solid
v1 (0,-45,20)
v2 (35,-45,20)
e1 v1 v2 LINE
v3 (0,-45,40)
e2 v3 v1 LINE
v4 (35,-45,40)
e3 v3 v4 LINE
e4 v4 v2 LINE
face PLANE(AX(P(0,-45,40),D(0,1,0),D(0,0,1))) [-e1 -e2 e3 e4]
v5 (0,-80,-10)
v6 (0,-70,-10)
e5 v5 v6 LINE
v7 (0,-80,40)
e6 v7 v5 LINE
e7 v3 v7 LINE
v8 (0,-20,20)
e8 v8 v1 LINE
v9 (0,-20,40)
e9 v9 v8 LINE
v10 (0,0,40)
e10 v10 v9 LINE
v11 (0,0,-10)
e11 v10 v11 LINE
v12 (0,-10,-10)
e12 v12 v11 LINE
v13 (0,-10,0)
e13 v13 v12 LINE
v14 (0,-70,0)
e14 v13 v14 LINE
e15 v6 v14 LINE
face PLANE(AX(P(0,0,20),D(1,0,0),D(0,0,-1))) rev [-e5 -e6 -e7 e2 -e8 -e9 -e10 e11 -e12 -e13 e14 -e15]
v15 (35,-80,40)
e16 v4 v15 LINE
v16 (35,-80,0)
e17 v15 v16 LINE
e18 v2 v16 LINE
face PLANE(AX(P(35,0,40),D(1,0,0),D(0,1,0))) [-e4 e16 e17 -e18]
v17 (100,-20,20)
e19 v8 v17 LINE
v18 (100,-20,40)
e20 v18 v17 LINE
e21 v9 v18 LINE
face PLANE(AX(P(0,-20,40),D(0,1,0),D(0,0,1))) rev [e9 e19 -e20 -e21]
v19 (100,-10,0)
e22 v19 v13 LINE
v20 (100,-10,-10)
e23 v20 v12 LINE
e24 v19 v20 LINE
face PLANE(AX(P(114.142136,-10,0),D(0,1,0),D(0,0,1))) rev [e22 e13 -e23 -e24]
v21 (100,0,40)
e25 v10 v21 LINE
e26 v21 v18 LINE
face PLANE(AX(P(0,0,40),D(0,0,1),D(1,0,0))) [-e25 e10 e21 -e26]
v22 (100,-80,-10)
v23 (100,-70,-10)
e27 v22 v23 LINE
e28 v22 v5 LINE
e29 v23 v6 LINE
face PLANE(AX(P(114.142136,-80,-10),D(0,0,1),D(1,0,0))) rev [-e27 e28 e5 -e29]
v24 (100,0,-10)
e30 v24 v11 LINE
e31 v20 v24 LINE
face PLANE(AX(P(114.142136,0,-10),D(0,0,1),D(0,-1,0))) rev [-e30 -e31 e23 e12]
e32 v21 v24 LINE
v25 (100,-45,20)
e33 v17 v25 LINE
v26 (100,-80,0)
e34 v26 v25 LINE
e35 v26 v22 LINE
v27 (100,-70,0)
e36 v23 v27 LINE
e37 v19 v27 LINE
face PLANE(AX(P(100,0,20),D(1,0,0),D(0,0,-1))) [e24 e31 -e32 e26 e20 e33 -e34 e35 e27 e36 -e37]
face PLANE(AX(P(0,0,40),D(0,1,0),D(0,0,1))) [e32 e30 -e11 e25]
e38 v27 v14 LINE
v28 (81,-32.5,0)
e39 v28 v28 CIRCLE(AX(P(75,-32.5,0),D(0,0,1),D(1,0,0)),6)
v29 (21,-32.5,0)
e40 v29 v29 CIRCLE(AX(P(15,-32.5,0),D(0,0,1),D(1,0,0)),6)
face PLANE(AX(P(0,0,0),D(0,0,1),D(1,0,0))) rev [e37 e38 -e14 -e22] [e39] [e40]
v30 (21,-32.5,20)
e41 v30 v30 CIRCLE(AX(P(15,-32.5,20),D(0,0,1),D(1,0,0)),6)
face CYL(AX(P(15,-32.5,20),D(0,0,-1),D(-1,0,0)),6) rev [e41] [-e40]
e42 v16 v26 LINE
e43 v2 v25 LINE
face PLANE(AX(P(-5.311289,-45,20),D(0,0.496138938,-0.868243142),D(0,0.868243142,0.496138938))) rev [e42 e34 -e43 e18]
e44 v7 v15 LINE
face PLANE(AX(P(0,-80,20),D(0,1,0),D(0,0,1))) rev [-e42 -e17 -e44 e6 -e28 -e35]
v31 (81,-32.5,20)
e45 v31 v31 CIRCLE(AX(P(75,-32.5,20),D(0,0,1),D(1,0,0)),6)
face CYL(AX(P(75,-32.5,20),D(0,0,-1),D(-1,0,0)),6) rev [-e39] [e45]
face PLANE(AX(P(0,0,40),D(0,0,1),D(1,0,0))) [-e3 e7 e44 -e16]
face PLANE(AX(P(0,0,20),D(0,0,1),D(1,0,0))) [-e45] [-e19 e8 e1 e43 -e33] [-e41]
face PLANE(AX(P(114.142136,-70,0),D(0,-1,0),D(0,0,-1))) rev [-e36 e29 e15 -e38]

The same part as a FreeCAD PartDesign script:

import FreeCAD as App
import Part
import Sketcher

V = App.Vector
Q = App.Units.Quantity

doc = App.newDocument("Part")
body = doc.addObject("PartDesign::Body", "Body")

# Sketch on XY plane
sketch1 = body.newObject("Sketcher::SketchObject", "Sketch")
sketch1.AttachmentSupport = (doc.getObject("XY_Plane"), [""])
sketch1.MapMode = "FlatFace"
sketch1.addGeometry([
    Part.LineSegment(V(100, -20, 0), V(0, -20, 0)),  # 0
    Part.LineSegment(V(0, -20, 0), V(0, -45, 0)),  # 1
    Part.LineSegment(V(0, -45, 0), V(35, -45, 0)),  # 2
    Part.LineSegment(V(35, -45, 0), V(35, -80, 0)),  # 3
    Part.LineSegment(V(35, -80, 0), V(100, -80, 0)),  # 4
    Part.LineSegment(V(100, -80, 0), V(100, -20, 0)),  # 5
    Part.Circle(V(15, -32, 0), V(0, 0, 1), 6),  # 6
    Part.Circle(V(75, -32, 0), V(0, 0, 1), 6),  # 7
], False)
sketch1.addConstraint([
    Sketcher.Constraint("Coincident", 0, 2, 1, 1),
    Sketcher.Constraint("Coincident", 1, 2, 2, 1),
    Sketcher.Constraint("Coincident", 2, 2, 3, 1),
    Sketcher.Constraint("Coincident", 3, 2, 4, 1),
    Sketcher.Constraint("Coincident", 4, 2, 5, 1),
    Sketcher.Constraint("Coincident", 5, 2, 0, 1),
    Sketcher.Constraint("Horizontal", 0),
    Sketcher.Constraint("Vertical", 1),
    Sketcher.Constraint("Horizontal", 2),
    Sketcher.Constraint("Vertical", 3),
    Sketcher.Constraint("Horizontal", 4),
    Sketcher.Constraint("Vertical", 5),
    Sketcher.Constraint("Equal", 6, 7),
    Sketcher.Constraint("PointOnObject", 0, 2, -2),
    Sketcher.Constraint("Horizontal", 6, 3, 7, 3),
    Sketcher.Constraint("Equal", 2, 3),
    Sketcher.Constraint("Diameter", 6, Q("12 mm")),
    Sketcher.Constraint("DistanceX", 0, 2, 0, 1, Q("100 mm")),
    Sketcher.Constraint("DistanceX", 2, 1, 2, 2, Q("35 mm")),
    Sketcher.Constraint("DistanceY", 1, 2, 1, 1, Q("25 mm")),
    Sketcher.Constraint("DistanceX", -1, 1, 6, 3, Q("15 mm")),
    Sketcher.Constraint("DistanceX", -1, 1, 7, 3, Q("75 mm")),
    Sketcher.Constraint("DistanceY", 0, 2, -1, 1, Q("20 mm")),
    Sketcher.Constraint("DistanceY", 6, 3, -1, 1, Q("32.5 mm")),
])
pad1 = body.newObject("PartDesign::Pad", "Pad")
pad1.Profile = sketch1
pad1.Length = 20

# Sketch on XY plane
sketch2 = body.newObject("Sketcher::SketchObject", "Sketch001")
sketch2.AttachmentSupport = (doc.getObject("XY_Plane"), [""])
sketch2.MapMode = "FlatFace"
sketch2.addGeometry([
    Part.LineSegment(V(0, -45, 0), V(0, -80, 0)),  # 0
    Part.LineSegment(V(0, -80, 0), V(35, -80, 0)),  # 1
    Part.LineSegment(V(35, -80, 0), V(35, -45, 0)),  # 2
    Part.LineSegment(V(35, -45, 0), V(0, -45, 0)),  # 3
    Part.LineSegment(V(0, 0, 0), V(0, -20, 0)),  # 4
    Part.LineSegment(V(0, -20, 0), V(100, -20, 0)),  # 5
    Part.LineSegment(V(100, -20, 0), V(100, 0, 0)),  # 6
    Part.LineSegment(V(100, 0, 0), V(0, 0, 0)),  # 7
], False)
sketch2.addConstraint([
    Sketcher.Constraint("Coincident", 0, 2, 1, 1),
    Sketcher.Constraint("Coincident", 1, 2, 2, 1),
    Sketcher.Constraint("Coincident", 2, 2, 3, 1),
    Sketcher.Constraint("Coincident", 3, 2, 0, 1),
    Sketcher.Constraint("Coincident", 4, 2, 5, 1),
    Sketcher.Constraint("Coincident", 5, 2, 6, 1),
    Sketcher.Constraint("Coincident", 6, 2, 7, 1),
    Sketcher.Constraint("Coincident", 7, 2, 4, 1),
    Sketcher.Constraint("Vertical", 0),
    Sketcher.Constraint("Horizontal", 1),
    Sketcher.Constraint("Vertical", 2),
    Sketcher.Constraint("Horizontal", 3),
    Sketcher.Constraint("Vertical", 4),
    Sketcher.Constraint("Horizontal", 5),
    Sketcher.Constraint("Vertical", 6),
    Sketcher.Constraint("Horizontal", 7),
    Sketcher.Constraint("Coincident", 7, 2, -1, 1),
    Sketcher.Constraint("PointOnObject", 0, 2, -2),
    Sketcher.Constraint("Equal", 3, 0),
    Sketcher.Constraint("DistanceX", 1, 1, 1, 2, Q("35 mm")),
    Sketcher.Constraint("DistanceX", 5, 1, 5, 2, Q("100 mm")),
    Sketcher.Constraint("DistanceY", 4, 2, 4, 1, Q("20 mm")),
    Sketcher.Constraint("DistanceY", 0, 2, -1, 1, Q("80 mm")),
])
pad2 = body.newObject("PartDesign::Pad", "Pad001")
pad2.Profile = sketch2
pad2.Length = 40

# Sketch on YZ plane
sketch3 = body.newObject("Sketcher::SketchObject", "Sketch002")
sketch3.AttachmentSupport = (doc.getObject("YZ_Plane"), [""])
sketch3.MapMode = "FlatFace"
sketch3.addGeometry([
    Part.LineSegment(V(-70, 0, 0), V(-80, 0, 0)),  # 0
    Part.LineSegment(V(-80, 0, 0), V(-80, -10, 0)),  # 1
    Part.LineSegment(V(-80, -10, 0), V(-70, -10, 0)),  # 2
    Part.LineSegment(V(-70, -10, 0), V(-70, 0, 0)),  # 3
    Part.LineSegment(V(0, 0, 0), V(-10, 0, 0)),  # 4
    Part.LineSegment(V(-10, 0, 0), V(-10, -10, 0)),  # 5
    Part.LineSegment(V(-10, -10, 0), V(0, -10, 0)),  # 6
    Part.LineSegment(V(0, -10, 0), V(0, 0, 0)),  # 7
], False)
sketch3.addConstraint([
    Sketcher.Constraint("Coincident", 0, 2, 1, 1),
    Sketcher.Constraint("Coincident", 1, 2, 2, 1),
    Sketcher.Constraint("Coincident", 2, 2, 3, 1),
    Sketcher.Constraint("Coincident", 3, 2, 0, 1),
    Sketcher.Constraint("Coincident", 4, 2, 5, 1),
    Sketcher.Constraint("Coincident", 5, 2, 6, 1),
    Sketcher.Constraint("Coincident", 6, 2, 7, 1),
    Sketcher.Constraint("Coincident", 7, 2, 4, 1),
    Sketcher.Constraint("Horizontal", 0),
    Sketcher.Constraint("Vertical", 1),
    Sketcher.Constraint("Horizontal", 2),
    Sketcher.Constraint("Vertical", 3),
    Sketcher.Constraint("Horizontal", 4),
    Sketcher.Constraint("Vertical", 5),
    Sketcher.Constraint("Horizontal", 6),
    Sketcher.Constraint("Vertical", 7),
    Sketcher.Constraint("Coincident", 7, 2, -1, 1),
    Sketcher.Constraint("PointOnObject", 0, 2, -1),
    Sketcher.Constraint("Horizontal", 2, 2, 5, 2),
    Sketcher.Constraint("Equal", 2, 4),
    Sketcher.Constraint("Equal", 6, 1),
    Sketcher.Constraint("DistanceX", 0, 2, 0, 1, Q("10 mm")),
    Sketcher.Constraint("DistanceX", 0, 2, -1, 1, Q("80 mm")),
])
pad3 = body.newObject("PartDesign::Pad", "Pad002")
pad3.Profile = sketch3
pad3.Length = 100

# Sketch on YZ plane
sketch4 = body.newObject("Sketcher::SketchObject", "Sketch003")
sketch4.AttachmentSupport = (doc.getObject("YZ_Plane"), [""])
sketch4.MapMode = "FlatFace"
sketch4.AttachmentOffset = App.Placement(V(0, 0, 100), App.Rotation())
sketch4.addGeometry([
    Part.LineSegment(V(-80, 0, 0), V(-45, 20, 0)),
    Part.LineSegment(V(-45, 20, 0), V(-80, 20, 0)),
    Part.LineSegment(V(-80, 20, 0), V(-80, 0, 0)),
], False)
sketch4.addConstraint([
    Sketcher.Constraint("Coincident", 0, 2, 1, 1),
    Sketcher.Constraint("Coincident", 1, 2, 2, 1),
    Sketcher.Constraint("Coincident", 2, 2, 0, 1),
    Sketcher.Constraint("Horizontal", 1),
    Sketcher.Constraint("Vertical", 2),
    Sketcher.Constraint("PointOnObject", 2, 2, -1),
    Sketcher.Constraint("DistanceX", 1, 2, 1, 1, Q("35 mm")),
    Sketcher.Constraint("DistanceY", 2, 2, 2, 1, Q("20 mm")),
    Sketcher.Constraint("DistanceX", 0, 2, -1, 1, Q("45 mm")),
])
pocket1 = body.newObject("PartDesign::Pocket", "Pocket")
pocket1.Profile = sketch4
pocket1.Length = 65

doc.recompute()
